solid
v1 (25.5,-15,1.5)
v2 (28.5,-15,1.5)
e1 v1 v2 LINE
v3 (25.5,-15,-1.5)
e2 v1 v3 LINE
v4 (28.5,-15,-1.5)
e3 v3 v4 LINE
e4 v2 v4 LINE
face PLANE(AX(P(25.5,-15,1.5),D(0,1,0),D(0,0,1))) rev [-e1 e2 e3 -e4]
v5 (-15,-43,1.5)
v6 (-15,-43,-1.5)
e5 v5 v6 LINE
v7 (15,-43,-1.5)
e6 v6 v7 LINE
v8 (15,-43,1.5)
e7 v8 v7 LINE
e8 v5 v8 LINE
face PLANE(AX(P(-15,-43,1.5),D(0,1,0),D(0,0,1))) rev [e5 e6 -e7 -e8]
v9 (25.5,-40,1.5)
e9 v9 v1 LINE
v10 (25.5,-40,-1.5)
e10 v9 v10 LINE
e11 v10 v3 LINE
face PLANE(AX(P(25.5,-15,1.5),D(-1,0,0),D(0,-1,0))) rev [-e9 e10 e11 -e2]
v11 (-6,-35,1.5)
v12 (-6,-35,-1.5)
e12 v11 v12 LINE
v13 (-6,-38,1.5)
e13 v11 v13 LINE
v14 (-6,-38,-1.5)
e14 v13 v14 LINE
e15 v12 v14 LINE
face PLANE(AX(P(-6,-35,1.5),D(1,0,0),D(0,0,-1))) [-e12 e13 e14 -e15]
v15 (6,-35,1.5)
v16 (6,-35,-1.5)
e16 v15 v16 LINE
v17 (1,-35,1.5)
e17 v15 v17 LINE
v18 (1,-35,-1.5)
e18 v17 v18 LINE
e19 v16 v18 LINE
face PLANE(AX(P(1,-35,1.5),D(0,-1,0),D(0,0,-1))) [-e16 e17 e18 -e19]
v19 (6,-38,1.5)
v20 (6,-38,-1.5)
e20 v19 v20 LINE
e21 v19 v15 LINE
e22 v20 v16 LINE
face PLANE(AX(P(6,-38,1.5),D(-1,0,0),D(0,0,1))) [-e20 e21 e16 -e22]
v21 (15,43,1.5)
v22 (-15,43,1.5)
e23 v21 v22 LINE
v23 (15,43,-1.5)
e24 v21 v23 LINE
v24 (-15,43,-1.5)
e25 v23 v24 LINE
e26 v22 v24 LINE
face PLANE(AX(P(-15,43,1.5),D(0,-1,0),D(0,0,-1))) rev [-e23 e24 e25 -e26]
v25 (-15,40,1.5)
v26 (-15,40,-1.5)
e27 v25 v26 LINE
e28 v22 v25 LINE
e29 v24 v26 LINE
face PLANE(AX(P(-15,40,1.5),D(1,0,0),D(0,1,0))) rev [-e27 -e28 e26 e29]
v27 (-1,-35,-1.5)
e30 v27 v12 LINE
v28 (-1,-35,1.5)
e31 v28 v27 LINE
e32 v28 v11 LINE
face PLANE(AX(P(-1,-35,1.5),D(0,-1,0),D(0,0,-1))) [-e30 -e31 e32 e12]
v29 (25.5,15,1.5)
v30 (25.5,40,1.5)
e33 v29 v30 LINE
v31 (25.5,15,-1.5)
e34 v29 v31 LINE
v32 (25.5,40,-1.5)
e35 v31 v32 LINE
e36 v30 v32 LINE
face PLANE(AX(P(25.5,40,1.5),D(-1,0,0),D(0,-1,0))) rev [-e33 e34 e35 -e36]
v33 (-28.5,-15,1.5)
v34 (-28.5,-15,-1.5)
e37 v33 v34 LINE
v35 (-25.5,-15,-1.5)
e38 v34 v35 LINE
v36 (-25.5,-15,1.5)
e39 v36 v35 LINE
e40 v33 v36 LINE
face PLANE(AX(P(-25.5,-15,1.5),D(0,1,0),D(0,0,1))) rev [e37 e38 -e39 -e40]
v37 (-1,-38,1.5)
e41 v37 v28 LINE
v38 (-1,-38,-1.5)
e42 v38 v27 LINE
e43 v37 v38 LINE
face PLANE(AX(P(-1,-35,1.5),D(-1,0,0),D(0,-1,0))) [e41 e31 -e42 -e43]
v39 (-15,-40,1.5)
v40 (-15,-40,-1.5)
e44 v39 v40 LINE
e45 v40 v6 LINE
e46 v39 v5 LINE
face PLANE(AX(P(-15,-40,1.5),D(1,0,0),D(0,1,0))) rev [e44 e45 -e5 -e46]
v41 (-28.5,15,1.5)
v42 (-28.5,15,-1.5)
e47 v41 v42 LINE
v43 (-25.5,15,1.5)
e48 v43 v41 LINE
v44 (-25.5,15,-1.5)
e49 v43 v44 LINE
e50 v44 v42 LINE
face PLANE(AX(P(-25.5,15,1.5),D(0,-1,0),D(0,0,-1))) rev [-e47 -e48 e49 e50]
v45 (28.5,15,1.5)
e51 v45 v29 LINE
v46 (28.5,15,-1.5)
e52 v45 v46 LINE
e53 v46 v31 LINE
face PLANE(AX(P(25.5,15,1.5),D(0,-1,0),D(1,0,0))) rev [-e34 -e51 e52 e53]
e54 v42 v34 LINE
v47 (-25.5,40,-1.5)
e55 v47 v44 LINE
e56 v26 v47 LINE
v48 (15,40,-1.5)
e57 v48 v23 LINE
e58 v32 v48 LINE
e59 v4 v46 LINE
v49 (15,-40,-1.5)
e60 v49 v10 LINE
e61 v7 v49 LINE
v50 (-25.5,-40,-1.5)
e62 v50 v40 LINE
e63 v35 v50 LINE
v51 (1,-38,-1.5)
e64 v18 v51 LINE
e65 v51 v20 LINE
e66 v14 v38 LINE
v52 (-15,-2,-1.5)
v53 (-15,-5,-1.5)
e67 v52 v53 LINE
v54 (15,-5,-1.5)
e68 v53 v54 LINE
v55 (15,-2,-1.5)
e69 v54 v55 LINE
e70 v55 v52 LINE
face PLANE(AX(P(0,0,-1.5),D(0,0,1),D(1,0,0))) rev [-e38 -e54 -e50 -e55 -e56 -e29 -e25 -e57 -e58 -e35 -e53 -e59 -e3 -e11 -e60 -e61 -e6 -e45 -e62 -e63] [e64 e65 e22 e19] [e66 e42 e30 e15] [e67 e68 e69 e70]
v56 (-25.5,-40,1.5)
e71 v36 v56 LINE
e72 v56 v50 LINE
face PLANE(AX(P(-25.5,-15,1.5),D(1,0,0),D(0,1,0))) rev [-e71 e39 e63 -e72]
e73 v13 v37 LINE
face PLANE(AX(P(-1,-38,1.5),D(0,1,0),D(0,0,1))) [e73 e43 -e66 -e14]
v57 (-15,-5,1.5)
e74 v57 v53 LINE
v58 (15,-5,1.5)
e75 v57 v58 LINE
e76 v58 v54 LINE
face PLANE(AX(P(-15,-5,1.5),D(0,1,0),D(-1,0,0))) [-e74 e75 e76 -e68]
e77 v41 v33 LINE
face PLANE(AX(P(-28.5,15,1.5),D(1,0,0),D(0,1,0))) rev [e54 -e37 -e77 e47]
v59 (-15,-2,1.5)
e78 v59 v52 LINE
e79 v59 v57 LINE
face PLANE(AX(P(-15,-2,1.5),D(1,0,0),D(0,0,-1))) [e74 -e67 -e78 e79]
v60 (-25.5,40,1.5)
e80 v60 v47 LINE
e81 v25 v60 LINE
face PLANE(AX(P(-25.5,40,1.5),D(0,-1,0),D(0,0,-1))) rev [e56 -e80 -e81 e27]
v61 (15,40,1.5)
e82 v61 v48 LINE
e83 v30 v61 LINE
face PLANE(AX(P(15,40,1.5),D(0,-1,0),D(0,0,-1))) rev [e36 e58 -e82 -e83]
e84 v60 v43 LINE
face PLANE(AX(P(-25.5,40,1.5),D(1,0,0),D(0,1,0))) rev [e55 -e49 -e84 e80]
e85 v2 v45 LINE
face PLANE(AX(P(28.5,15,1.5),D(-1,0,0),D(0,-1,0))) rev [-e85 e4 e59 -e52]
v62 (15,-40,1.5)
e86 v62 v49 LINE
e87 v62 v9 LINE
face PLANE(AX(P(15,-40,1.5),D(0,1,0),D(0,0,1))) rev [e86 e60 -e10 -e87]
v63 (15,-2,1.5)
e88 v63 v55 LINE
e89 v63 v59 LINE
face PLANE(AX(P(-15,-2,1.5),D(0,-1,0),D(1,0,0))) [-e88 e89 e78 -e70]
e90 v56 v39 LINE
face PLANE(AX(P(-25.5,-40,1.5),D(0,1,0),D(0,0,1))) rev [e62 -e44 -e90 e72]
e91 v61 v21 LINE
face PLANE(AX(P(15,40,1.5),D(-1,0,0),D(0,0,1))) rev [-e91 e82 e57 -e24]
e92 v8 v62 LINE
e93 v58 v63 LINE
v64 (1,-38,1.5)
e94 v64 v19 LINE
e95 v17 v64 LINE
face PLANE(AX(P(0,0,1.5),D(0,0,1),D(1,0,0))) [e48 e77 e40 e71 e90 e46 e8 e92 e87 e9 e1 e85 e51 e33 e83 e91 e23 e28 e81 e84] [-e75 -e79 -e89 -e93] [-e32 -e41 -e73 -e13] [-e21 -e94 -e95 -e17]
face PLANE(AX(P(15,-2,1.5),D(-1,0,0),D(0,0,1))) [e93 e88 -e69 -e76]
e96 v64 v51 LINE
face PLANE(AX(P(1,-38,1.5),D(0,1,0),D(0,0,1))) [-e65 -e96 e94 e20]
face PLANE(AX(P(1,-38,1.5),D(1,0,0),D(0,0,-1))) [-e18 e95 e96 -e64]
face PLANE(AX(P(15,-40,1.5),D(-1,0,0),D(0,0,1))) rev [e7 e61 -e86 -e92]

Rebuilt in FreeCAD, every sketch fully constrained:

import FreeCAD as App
import Part
import Sketcher
Q = App.Units.Quantity

doc = App.newDocument("Part")
body = doc.addObject("PartDesign::Body", "Body")

# Sketch on XY plane
sketch1 = body.newObject("Sketcher::SketchObject", "Sketch")
sketch1.AttachmentSupport = (doc.getObject("XY_Plane"), [""])
sketch1.MapMode = "FlatFace"
sketch1.addGeometry([
    Part.LineSegment(App.Vector(-25.5, -15, 0), App.Vector(-25.5, -40, 0)),  # 0
    Part.LineSegment(App.Vector(-25.5, -40, 0), App.Vector(-15, -40, 0)),  # 1
    Part.LineSegment(App.Vector(-15, -40, 0), App.Vector(-15, -43, 0)),  # 2
    Part.LineSegment(App.Vector(-15, -43, 0), App.Vector(15, -43, 0)),  # 3
    Part.LineSegment(App.Vector(15, -43, 0), App.Vector(15, -40, 0)),  # 4
    Part.LineSegment(App.Vector(15, -40, 0), App.Vector(25.5, -40, 0)),  # 5
    Part.LineSegment(App.Vector(25.5, -40, 0), App.Vector(25.5, -15, 0)),  # 6
    Part.LineSegment(App.Vector(25.5, -15, 0), App.Vector(28.5, -15, 0)),  # 7
    Part.LineSegment(App.Vector(28.5, -15, 0), App.Vector(28.5, 15, 0)),  # 8
    Part.LineSegment(App.Vector(28.5, 15, 0), App.Vector(25.5, 15, 0)),  # 9
    Part.LineSegment(App.Vector(25.5, 15, 0), App.Vector(25.5, 40, 0)),  # 10
    Part.LineSegment(App.Vector(25.5, 40, 0), App.Vector(15, 40, 0)),  # 11
    Part.LineSegment(App.Vector(15, 40, 0), App.Vector(15, 43, 0)),  # 12
    Part.LineSegment(App.Vector(15, 43, 0), App.Vector(-15, 43, 0)),  # 13
    Part.LineSegment(App.Vector(-15, 43, 0), App.Vector(-15, 40, 0)),  # 14
    Part.LineSegment(App.Vector(-15, 40, 0), App.Vector(-25.5, 40, 0)),  # 15
    Part.LineSegment(App.Vector(-25.5, 40, 0), App.Vector(-25.5, 15, 0)),  # 16
    Part.LineSegment(App.Vector(-25.5, 15, 0), App.Vector(-28.5, 15, 0)),  # 17
    Part.LineSegment(App.Vector(-28.5, 15, 0), App.Vector(-28.5, -15, 0)),  # 18
    Part.LineSegment(App.Vector(-28.5, -15, 0), App.Vector(-25.5, -15, 0)),  # 19
    Part.LineSegment(App.Vector(-1, -38, 0), App.Vector(-6, -38, 0)),  # 20
    Part.LineSegment(App.Vector(-6, -38, 0), App.Vector(-6, -35, 0)),  # 21
    Part.LineSegment(App.Vector(-6, -35, 0), App.Vector(-1, -35, 0)),  # 22
    Part.LineSegment(App.Vector(-1, -35, 0), App.Vector(-1, -38, 0)),  # 23
    Part.LineSegment(App.Vector(6, -38, 0), App.Vector(1, -38, 0)),  # 24
    Part.LineSegment(App.Vector(1, -38, 0), App.Vector(1, -35, 0)),  # 25
    Part.LineSegment(App.Vector(1, -35, 0), App.Vector(6, -35, 0)),  # 26
    Part.LineSegment(App.Vector(6, -35, 0), App.Vector(6, -38, 0)),  # 27
    Part.LineSegment(App.Vector(15, -5, 0), App.Vector(-15, -5, 0)),  # 28
    Part.LineSegment(App.Vector(-15, -5, 0), App.Vector(-15, -2, 0)),  # 29
    Part.LineSegment(App.Vector(-15, -2, 0), App.Vector(15, -2, 0)),  # 30
    Part.LineSegment(App.Vector(15, -2, 0), App.Vector(15, -5, 0)),  # 31
], False)
sketch1.addConstraint([
    Sketcher.Constraint("Coincident", 0, 2, 1, 1),
    Sketcher.Constraint("Coincident", 1, 2, 2, 1),
    Sketcher.Constraint("Coincident", 2, 2, 3, 1),
    Sketcher.Constraint("Coincident", 3, 2, 4, 1),
    Sketcher.Constraint("Coincident", 4, 2, 5, 1),
    Sketcher.Constraint("Coincident", 5, 2, 6, 1),
    Sketcher.Constraint("Coincident", 6, 2, 7, 1),
    Sketcher.Constraint("Coincident", 7, 2, 8, 1),
    Sketcher.Constraint("Coincident", 8, 2, 9, 1),
    Sketcher.Constraint("Coincident", 9, 2, 10, 1),
    Sketcher.Constraint("Coincident", 10, 2, 11, 1),
    Sketcher.Constraint("Coincident", 11, 2, 12, 1),
    Sketcher.Constraint("Coincident", 12, 2, 13, 1),
    Sketcher.Constraint("Coincident", 13, 2, 14, 1),
    Sketcher.Constraint("Coincident", 14, 2, 15, 1),
    Sketcher.Constraint("Coincident", 15, 2, 16, 1),
    Sketcher.Constraint("Coincident", 16, 2, 17, 1),
    Sketcher.Constraint("Coincident", 17, 2, 18, 1),
    Sketcher.Constraint("Coincident", 18, 2, 19, 1),
    Sketcher.Constraint("Coincident", 19, 2, 0, 1),
    Sketcher.Constraint("Coincident", 20, 2, 21, 1),
    Sketcher.Constraint("Coincident", 21, 2, 22, 1),
    Sketcher.Constraint("Coincident", 22, 2, 23, 1),
    Sketcher.Constraint("Coincident", 23, 2, 20, 1),
    Sketcher.Constraint("Coincident", 24, 2, 25, 1),
    Sketcher.Constraint("Coincident", 25, 2, 26, 1),
    Sketcher.Constraint("Coincident", 26, 2, 27, 1),
    Sketcher.Constraint("Coincident", 27, 2, 24, 1),
    Sketcher.Constraint("Coincident", 28, 2, 29, 1),
    Sketcher.Constraint("Coincident", 29, 2, 30, 1),
    Sketcher.Constraint("Coincident", 30, 2, 31, 1),
    Sketcher.Constraint("Coincident", 31, 2, 28, 1),
    Sketcher.Constraint("Vertical", 0),
    Sketcher.Constraint("Horizontal", 1),
    Sketcher.Constraint("Vertical", 2),
    Sketcher.Constraint("Horizontal", 3),
    Sketcher.Constraint("Vertical", 4),
    Sketcher.Constraint("Horizontal", 5),
    Sketcher.Constraint("Vertical", 6),
    Sketcher.Constraint("Horizontal", 7),
    Sketcher.Constraint("Vertical", 8),
    Sketcher.Constraint("Horizontal", 9),
    Sketcher.Constraint("Vertical", 10),
    Sketcher.Constraint("Horizontal", 11),
    Sketcher.Constraint("Vertical", 12),
    Sketcher.Constraint("Horizontal", 13),
    Sketcher.Constraint("Vertical", 14),
    Sketcher.Constraint("Horizontal", 15),
    Sketcher.Constraint("Vertical", 16),
    Sketcher.Constraint("Horizontal", 17),
    Sketcher.Constraint("Vertical", 18),
    Sketcher.Constraint("Horizontal", 19),
    Sketcher.Constraint("Horizontal", 20),
    Sketcher.Constraint("Vertical", 21),
    Sketcher.Constraint("Horizontal", 22),
    Sketcher.Constraint("Vertical", 23),
    Sketcher.Constraint("Horizontal", 24),
    Sketcher.Constraint("Vertical", 25),
    Sketcher.Constraint("Horizontal", 26),
    Sketcher.Constraint("Vertical", 27),
    Sketcher.Constraint("Horizontal", 28),
    Sketcher.Constraint("Vertical", 29),
    Sketcher.Constraint("Horizontal", 30),
    Sketcher.Constraint("Vertical", 31),
    Sketcher.Constraint("Symmetric", 0, 2, 10, 2, -1, 1),
    Sketcher.Constraint("Symmetric", 2, 2, 12, 2, -1, 1),
    Sketcher.Constraint("Symmetric", 4, 2, 14, 2, -1, 1),
    Sketcher.Constraint("Symmetric", 6, 2, 16, 2, -1, 1),
    Sketcher.Constraint("Symmetric", 8, 2, 18, 2, -1, 1),
    Sketcher.Constraint("Symmetric", 1, 2, 4, 2, -2),
    Sketcher.Constraint("Symmetric", 9, 2, 16, 2, -2),
    Sketcher.Constraint("Symmetric", 23, 2, 24, 2, -2),
    Sketcher.Constraint("Symmetric", 21, 2, 26, 2, -2),
    Sketcher.Constraint("Vertical", 14, 2, 28, 2),
    Sketcher.Constraint("Vertical", 12, 2, 30, 2),
    Sketcher.Constraint("Equal", 19, 2),
    Sketcher.Constraint("Equal", 30, 8),
    Sketcher.Constraint("Equal", 14, 21),
    Sketcher.Constraint("Equal", 27, 29),
    Sketcher.Constraint("DistanceX", 3, 1, 3, 2, Q("30 mm")),
    Sketcher.Constraint("DistanceX", 7, 1, 7, 2, Q("3 mm")),
    Sketcher.Constraint("DistanceX", 20, 2, 20, 1, Q("5 mm")),
    Sketcher.Constraint("DistanceY", 0, 2, 0, 1, Q("25 mm")),
    Sketcher.Constraint("DistanceX", 1, 1, 1, 2, Q("10.5 mm")),
    Sketcher.Constraint("DistanceX", 20, 2, -1, 1, Q("6 mm")),
    Sketcher.Constraint("DistanceY", 20, 2, -1, 1, Q("38 mm")),
    Sketcher.Constraint("DistanceY", 28, 2, -1, 1, Q("5 mm")),
])
pad1 = body.newObject("PartDesign::Pad", "Pad")
pad1.Profile = sketch1
pad1.Length = 3
pad1.Midplane = True

doc.recompute()
